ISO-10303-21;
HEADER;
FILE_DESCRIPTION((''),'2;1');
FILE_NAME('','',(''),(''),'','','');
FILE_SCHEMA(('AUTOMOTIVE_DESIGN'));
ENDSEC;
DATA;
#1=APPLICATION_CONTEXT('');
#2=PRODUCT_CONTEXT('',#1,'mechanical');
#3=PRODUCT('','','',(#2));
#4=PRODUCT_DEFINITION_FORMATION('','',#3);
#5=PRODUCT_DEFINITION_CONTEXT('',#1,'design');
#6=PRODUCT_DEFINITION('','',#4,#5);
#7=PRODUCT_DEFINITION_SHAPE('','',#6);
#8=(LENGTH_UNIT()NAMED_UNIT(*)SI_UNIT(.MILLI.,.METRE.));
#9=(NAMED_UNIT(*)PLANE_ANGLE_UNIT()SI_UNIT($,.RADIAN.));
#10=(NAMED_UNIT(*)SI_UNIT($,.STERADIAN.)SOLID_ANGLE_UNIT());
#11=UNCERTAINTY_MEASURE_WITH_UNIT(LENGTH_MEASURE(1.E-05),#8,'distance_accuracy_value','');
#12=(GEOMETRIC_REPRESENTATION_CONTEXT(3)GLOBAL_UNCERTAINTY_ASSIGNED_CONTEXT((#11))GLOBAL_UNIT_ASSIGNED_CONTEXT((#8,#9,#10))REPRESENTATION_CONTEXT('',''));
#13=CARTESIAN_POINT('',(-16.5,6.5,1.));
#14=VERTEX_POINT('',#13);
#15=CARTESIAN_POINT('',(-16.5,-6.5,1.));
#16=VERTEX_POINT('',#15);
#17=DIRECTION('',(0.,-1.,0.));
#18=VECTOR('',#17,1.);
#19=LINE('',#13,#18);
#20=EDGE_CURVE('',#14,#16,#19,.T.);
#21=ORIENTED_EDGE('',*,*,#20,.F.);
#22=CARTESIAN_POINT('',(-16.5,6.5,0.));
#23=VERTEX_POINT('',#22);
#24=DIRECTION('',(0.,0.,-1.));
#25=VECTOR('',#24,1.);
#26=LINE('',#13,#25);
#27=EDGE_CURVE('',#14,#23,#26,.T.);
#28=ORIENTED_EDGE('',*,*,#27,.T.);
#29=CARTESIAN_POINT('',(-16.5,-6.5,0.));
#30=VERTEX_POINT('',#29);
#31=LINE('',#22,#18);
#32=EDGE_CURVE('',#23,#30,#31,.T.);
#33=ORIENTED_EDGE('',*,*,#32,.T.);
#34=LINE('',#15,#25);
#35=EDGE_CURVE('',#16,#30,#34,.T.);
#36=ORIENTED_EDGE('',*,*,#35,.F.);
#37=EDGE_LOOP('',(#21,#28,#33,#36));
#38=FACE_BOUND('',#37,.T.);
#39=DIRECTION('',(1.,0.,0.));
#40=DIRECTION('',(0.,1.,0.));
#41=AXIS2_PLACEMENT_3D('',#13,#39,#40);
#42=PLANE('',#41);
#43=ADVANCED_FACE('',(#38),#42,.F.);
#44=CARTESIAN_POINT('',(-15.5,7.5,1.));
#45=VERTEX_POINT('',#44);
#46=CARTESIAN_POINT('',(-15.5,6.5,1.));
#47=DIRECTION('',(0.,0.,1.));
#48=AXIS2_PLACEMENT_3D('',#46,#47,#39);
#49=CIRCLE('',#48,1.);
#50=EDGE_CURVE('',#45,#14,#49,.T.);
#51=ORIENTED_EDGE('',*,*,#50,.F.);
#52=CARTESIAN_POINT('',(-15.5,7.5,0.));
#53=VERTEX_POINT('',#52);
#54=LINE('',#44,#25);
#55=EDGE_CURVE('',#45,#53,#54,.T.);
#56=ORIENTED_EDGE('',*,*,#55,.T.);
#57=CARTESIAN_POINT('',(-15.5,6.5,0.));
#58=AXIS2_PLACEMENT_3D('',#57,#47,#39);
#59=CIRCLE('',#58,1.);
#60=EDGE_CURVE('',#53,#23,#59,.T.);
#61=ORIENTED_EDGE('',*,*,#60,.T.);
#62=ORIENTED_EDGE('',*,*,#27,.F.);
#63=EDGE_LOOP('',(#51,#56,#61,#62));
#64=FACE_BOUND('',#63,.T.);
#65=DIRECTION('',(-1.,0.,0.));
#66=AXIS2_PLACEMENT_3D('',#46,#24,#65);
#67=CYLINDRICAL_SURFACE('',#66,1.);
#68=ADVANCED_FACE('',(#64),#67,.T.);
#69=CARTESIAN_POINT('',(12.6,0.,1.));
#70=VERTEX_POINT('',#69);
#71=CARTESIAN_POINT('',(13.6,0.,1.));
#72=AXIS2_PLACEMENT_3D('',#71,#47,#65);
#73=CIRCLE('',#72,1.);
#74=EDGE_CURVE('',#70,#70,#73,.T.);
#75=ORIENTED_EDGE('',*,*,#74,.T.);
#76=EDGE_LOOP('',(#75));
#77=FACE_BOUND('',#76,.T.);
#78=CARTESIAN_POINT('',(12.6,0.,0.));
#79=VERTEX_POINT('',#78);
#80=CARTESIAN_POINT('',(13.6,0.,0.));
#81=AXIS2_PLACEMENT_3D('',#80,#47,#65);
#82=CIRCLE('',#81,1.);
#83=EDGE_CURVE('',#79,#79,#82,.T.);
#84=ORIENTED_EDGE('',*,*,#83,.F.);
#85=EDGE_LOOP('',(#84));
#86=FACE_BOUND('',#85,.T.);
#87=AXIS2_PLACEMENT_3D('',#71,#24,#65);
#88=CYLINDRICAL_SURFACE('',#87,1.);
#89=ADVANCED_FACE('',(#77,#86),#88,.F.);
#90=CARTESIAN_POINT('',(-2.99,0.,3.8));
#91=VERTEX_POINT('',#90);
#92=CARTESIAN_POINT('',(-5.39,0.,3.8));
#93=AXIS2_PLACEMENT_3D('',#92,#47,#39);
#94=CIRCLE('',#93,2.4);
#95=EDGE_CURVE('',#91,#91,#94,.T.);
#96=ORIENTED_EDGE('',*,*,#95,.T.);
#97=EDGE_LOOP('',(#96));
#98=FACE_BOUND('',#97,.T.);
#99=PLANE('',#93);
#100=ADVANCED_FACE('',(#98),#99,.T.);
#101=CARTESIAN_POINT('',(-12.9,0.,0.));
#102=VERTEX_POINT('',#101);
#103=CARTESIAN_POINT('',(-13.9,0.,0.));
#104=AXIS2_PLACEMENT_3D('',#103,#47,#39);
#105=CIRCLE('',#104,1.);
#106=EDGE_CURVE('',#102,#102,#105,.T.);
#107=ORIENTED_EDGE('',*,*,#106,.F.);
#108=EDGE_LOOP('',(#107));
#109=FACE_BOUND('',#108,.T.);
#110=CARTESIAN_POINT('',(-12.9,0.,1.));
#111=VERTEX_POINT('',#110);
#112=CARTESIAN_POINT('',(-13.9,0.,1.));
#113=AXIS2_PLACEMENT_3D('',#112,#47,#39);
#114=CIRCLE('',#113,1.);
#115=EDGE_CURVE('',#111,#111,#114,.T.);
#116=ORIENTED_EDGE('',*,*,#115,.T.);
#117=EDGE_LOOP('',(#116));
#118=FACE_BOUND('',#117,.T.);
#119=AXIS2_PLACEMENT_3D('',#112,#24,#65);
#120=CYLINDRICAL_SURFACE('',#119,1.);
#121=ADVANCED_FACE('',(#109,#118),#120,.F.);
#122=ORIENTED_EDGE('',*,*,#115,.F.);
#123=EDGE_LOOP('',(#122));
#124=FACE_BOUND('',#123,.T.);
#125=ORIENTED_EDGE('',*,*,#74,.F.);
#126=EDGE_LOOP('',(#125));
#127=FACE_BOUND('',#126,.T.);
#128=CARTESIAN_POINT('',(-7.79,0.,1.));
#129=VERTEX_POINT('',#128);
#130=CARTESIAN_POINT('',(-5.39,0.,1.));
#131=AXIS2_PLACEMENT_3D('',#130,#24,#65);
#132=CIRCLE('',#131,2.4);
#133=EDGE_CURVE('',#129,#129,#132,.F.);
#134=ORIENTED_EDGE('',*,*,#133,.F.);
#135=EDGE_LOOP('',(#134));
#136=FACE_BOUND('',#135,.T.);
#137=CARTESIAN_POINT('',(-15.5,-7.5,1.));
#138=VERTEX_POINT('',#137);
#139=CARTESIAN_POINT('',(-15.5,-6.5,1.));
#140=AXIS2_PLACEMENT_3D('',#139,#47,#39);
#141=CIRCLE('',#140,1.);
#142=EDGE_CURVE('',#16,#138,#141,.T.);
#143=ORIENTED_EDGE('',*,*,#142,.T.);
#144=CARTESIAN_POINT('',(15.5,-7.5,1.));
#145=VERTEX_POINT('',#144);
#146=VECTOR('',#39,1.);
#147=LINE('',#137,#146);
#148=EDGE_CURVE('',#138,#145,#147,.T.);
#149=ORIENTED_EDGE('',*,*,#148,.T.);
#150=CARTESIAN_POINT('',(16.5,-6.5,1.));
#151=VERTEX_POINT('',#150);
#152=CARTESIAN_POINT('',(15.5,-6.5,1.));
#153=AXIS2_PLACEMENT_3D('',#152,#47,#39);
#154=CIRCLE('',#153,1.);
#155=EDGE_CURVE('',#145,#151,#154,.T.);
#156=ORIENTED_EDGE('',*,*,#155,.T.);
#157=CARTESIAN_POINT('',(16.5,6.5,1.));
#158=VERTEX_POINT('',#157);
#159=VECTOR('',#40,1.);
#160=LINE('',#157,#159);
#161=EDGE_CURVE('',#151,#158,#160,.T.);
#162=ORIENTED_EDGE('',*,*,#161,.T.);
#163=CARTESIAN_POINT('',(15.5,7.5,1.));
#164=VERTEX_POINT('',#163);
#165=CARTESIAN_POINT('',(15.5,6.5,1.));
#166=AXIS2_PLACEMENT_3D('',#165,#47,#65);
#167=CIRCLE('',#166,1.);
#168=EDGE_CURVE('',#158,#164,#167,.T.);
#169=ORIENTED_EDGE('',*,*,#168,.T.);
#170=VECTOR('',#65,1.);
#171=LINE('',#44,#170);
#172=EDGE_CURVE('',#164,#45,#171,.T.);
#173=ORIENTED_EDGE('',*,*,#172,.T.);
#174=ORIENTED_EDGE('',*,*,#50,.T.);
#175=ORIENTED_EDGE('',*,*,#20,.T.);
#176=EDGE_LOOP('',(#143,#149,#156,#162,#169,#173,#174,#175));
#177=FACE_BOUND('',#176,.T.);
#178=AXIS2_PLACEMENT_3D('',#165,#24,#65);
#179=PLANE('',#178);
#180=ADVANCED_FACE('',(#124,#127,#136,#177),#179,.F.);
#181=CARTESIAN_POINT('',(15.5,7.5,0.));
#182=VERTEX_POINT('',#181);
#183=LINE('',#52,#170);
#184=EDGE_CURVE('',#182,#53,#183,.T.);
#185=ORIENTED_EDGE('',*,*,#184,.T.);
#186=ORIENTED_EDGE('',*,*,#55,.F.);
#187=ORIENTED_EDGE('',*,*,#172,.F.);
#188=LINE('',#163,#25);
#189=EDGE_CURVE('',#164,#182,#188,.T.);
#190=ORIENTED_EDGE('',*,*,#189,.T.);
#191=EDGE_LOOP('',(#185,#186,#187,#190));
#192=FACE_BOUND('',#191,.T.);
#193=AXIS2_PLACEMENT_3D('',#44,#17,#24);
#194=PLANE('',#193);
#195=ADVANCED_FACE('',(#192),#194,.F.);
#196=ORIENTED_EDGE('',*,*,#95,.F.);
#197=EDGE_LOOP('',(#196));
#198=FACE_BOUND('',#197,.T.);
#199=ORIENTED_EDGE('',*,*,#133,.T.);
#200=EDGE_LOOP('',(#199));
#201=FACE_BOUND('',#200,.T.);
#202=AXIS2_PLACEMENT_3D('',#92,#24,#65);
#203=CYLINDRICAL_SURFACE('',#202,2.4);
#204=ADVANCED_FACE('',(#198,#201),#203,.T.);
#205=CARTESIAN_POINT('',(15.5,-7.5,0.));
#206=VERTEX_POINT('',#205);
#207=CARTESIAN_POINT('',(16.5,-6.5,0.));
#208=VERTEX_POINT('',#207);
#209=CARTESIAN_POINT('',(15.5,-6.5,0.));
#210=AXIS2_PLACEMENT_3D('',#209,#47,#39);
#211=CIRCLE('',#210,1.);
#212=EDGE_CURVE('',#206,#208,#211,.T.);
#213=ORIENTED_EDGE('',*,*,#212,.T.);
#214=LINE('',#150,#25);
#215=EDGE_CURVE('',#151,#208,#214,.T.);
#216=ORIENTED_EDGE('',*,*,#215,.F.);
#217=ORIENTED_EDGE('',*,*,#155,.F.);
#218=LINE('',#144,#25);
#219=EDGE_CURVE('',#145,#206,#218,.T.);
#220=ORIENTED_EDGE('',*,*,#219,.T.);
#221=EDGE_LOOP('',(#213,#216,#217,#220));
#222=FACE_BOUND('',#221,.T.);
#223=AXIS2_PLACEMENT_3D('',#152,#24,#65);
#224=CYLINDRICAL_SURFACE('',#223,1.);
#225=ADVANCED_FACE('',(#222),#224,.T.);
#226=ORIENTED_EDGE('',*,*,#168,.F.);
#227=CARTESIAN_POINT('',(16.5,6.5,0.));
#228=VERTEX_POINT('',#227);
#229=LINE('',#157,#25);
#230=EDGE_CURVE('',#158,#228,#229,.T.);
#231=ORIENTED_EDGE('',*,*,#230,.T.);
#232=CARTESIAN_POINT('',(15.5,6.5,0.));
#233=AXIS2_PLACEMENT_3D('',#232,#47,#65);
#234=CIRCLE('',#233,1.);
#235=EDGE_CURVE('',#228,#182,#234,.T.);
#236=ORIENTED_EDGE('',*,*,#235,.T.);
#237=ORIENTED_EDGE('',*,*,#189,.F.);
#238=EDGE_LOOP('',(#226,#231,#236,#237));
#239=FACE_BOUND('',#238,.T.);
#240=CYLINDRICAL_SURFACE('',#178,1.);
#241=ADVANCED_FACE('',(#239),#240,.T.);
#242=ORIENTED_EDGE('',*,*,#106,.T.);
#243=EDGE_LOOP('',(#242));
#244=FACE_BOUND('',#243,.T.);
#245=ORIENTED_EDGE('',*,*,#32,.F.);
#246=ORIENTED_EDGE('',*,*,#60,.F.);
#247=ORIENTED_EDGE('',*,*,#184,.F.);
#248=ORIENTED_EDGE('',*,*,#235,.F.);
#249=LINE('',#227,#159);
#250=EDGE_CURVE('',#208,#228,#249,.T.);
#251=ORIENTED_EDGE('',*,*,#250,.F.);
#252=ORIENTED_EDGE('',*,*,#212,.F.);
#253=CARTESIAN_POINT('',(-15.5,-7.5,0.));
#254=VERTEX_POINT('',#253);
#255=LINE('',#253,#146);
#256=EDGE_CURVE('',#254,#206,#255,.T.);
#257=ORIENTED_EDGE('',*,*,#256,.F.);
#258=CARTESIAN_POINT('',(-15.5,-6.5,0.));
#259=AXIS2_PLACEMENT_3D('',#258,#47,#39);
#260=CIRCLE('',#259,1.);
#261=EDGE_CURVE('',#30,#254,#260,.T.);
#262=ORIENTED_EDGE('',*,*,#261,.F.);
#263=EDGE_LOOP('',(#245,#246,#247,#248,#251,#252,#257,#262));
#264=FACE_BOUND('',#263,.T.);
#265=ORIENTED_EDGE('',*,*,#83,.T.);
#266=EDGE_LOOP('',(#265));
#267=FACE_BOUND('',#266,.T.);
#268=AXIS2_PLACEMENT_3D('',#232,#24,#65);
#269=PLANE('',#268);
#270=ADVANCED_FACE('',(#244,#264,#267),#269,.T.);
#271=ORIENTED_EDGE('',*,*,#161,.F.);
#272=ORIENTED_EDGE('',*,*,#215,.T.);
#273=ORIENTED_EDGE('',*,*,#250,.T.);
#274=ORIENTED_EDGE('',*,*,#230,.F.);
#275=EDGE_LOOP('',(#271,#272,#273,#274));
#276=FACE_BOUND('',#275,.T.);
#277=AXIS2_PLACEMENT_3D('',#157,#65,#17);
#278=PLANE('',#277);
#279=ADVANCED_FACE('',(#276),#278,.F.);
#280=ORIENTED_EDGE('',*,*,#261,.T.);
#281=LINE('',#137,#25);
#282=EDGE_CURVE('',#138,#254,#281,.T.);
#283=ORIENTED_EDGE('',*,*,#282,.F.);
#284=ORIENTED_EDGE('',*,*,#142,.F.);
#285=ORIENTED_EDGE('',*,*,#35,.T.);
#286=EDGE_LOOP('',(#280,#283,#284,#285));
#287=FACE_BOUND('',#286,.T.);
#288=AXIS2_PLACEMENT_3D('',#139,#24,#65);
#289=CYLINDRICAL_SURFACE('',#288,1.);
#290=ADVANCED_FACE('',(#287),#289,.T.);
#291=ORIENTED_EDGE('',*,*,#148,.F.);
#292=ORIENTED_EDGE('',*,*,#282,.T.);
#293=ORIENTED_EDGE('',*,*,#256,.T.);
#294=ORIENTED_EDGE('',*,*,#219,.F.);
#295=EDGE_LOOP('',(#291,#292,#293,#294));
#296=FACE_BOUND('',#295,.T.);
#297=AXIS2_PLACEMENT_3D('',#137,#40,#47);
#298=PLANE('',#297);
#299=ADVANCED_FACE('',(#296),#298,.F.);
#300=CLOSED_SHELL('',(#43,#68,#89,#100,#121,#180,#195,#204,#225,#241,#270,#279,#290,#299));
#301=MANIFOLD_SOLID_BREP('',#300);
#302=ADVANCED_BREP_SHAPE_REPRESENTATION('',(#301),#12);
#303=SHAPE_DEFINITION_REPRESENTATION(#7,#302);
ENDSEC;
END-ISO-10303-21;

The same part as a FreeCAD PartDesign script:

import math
import FreeCAD as App
import Part
import Sketcher

V = App.Vector
Q = App.Units.Quantity

doc = App.newDocument("Part")
body = doc.addObject("PartDesign::Body", "Body")

# Sketch on XY plane
sketch1 = body.newObject("Sketcher::SketchObject", "Sketch")
sketch1.AttachmentSupport = (doc.getObject("XY_Plane"), [""])
sketch1.MapMode = "FlatFace"
sketch1.addGeometry([
    Part.LineSegment(V(15.5, 7.5, 0), V(-15.5, 7.5, 0)),  # 0
    Part.ArcOfCircle(Part.Circle(V(-15.5, 6.5, 0), V(0, 0, 1), 1), math.radians(90), math.radians(180)),  # 1
    Part.LineSegment(V(-16.5, 6.5, 0), V(-16.5, -6.5, 0)),  # 2
    Part.ArcOfCircle(Part.Circle(V(-15.5, -6.5, 0), V(0, 0, 1), 1), math.radians(-180), math.radians(-90)),  # 3
    Part.LineSegment(V(-15.5, -7.5, 0), V(15.5, -7.5, 0)),  # 4
    Part.ArcOfCircle(Part.Circle(V(15.5, -6.5, 0), V(0, 0, 1), 1), math.radians(-90), math.radians(0)),  # 5
    Part.LineSegment(V(16.5, -6.5, 0), V(16.5, 6.5, 0)),  # 6
    Part.ArcOfCircle(Part.Circle(V(15.5, 6.5, 0), V(0, 0, 1), 1), math.radians(0), math.radians(90)),  # 7
    Part.Circle(V(13.6, 0, 0), V(0, 0, 1), 1),  # 8
    Part.Circle(V(-13.9, 0, 0), V(0, 0, 1), 1),  # 9
], False)
sketch1.addConstraint([
    Sketcher.Constraint("Tangent", 0, 2, 1, 1),
    Sketcher.Constraint("Tangent", 1, 2, 2, 1),
    Sketcher.Constraint("Tangent", 2, 2, 3, 1),
    Sketcher.Constraint("Tangent", 3, 2, 4, 1),
    Sketcher.Constraint("Tangent", 4, 2, 5, 1),
    Sketcher.Constraint("Tangent", 5, 2, 6, 1),
    Sketcher.Constraint("Tangent", 6, 2, 7, 1),
    Sketcher.Constraint("Tangent", 7, 2, 0, 1),
    Sketcher.Constraint("Horizontal", 0),
    Sketcher.Constraint("Vertical", 2),
    Sketcher.Constraint("Horizontal", 4),
    Sketcher.Constraint("Vertical", 6),
    Sketcher.Constraint("Equal", 1, 3),
    Sketcher.Constraint("Equal", 3, 5),
    Sketcher.Constraint("Equal", 5, 7),
    Sketcher.Constraint("Equal", 7, 8),
    Sketcher.Constraint("Equal", 8, 9),
    Sketcher.Constraint("Symmetric", 1, 3, 5, 3, -1, 1),
    Sketcher.Constraint("PointOnObject", 8, 3, -1),
    Sketcher.Constraint("PointOnObject", 9, 3, -1),
    Sketcher.Constraint("Diameter", 8, Q("2 mm")),
    Sketcher.Constraint("DistanceX", 0, 2, 0, 1, Q("31 mm")),
    Sketcher.Constraint("DistanceY", 2, 2, 2, 1, Q("13 mm")),
    Sketcher.Constraint("DistanceX", -1, 1, 8, 3, Q("13.6 mm")),
    Sketcher.Constraint("DistanceX", 9, 3, -1, 1, Q("13.9 mm")),
])
pad1 = body.newObject("PartDesign::Pad", "Pad")
pad1.Profile = sketch1
pad1.Length = 1

# Sketch on XY plane
sketch2 = body.newObject("Sketcher::SketchObject", "Sketch001")
sketch2.AttachmentSupport = (doc.getObject("XY_Plane"), [""])
sketch2.MapMode = "FlatFace"
sketch2.AttachmentOffset = App.Placement(V(0, 0, 1), App.Rotation())
sketch2.addGeometry(Part.Circle(V(-5.39, 0, 0), V(0, 0, 1), 2.4), False)
sketch2.addConstraint([
    Sketcher.Constraint("PointOnObject", 0, 3, -1),
    Sketcher.Constraint("Diameter", 0, Q("4.8 mm")),
    Sketcher.Constraint("DistanceX", 0, 3, -1, 1, Q("5.39 mm")),
])
pad2 = body.newObject("PartDesign::Pad", "Pad001")
pad2.Profile = sketch2
pad2.Length = 2.8

doc.recompute()
